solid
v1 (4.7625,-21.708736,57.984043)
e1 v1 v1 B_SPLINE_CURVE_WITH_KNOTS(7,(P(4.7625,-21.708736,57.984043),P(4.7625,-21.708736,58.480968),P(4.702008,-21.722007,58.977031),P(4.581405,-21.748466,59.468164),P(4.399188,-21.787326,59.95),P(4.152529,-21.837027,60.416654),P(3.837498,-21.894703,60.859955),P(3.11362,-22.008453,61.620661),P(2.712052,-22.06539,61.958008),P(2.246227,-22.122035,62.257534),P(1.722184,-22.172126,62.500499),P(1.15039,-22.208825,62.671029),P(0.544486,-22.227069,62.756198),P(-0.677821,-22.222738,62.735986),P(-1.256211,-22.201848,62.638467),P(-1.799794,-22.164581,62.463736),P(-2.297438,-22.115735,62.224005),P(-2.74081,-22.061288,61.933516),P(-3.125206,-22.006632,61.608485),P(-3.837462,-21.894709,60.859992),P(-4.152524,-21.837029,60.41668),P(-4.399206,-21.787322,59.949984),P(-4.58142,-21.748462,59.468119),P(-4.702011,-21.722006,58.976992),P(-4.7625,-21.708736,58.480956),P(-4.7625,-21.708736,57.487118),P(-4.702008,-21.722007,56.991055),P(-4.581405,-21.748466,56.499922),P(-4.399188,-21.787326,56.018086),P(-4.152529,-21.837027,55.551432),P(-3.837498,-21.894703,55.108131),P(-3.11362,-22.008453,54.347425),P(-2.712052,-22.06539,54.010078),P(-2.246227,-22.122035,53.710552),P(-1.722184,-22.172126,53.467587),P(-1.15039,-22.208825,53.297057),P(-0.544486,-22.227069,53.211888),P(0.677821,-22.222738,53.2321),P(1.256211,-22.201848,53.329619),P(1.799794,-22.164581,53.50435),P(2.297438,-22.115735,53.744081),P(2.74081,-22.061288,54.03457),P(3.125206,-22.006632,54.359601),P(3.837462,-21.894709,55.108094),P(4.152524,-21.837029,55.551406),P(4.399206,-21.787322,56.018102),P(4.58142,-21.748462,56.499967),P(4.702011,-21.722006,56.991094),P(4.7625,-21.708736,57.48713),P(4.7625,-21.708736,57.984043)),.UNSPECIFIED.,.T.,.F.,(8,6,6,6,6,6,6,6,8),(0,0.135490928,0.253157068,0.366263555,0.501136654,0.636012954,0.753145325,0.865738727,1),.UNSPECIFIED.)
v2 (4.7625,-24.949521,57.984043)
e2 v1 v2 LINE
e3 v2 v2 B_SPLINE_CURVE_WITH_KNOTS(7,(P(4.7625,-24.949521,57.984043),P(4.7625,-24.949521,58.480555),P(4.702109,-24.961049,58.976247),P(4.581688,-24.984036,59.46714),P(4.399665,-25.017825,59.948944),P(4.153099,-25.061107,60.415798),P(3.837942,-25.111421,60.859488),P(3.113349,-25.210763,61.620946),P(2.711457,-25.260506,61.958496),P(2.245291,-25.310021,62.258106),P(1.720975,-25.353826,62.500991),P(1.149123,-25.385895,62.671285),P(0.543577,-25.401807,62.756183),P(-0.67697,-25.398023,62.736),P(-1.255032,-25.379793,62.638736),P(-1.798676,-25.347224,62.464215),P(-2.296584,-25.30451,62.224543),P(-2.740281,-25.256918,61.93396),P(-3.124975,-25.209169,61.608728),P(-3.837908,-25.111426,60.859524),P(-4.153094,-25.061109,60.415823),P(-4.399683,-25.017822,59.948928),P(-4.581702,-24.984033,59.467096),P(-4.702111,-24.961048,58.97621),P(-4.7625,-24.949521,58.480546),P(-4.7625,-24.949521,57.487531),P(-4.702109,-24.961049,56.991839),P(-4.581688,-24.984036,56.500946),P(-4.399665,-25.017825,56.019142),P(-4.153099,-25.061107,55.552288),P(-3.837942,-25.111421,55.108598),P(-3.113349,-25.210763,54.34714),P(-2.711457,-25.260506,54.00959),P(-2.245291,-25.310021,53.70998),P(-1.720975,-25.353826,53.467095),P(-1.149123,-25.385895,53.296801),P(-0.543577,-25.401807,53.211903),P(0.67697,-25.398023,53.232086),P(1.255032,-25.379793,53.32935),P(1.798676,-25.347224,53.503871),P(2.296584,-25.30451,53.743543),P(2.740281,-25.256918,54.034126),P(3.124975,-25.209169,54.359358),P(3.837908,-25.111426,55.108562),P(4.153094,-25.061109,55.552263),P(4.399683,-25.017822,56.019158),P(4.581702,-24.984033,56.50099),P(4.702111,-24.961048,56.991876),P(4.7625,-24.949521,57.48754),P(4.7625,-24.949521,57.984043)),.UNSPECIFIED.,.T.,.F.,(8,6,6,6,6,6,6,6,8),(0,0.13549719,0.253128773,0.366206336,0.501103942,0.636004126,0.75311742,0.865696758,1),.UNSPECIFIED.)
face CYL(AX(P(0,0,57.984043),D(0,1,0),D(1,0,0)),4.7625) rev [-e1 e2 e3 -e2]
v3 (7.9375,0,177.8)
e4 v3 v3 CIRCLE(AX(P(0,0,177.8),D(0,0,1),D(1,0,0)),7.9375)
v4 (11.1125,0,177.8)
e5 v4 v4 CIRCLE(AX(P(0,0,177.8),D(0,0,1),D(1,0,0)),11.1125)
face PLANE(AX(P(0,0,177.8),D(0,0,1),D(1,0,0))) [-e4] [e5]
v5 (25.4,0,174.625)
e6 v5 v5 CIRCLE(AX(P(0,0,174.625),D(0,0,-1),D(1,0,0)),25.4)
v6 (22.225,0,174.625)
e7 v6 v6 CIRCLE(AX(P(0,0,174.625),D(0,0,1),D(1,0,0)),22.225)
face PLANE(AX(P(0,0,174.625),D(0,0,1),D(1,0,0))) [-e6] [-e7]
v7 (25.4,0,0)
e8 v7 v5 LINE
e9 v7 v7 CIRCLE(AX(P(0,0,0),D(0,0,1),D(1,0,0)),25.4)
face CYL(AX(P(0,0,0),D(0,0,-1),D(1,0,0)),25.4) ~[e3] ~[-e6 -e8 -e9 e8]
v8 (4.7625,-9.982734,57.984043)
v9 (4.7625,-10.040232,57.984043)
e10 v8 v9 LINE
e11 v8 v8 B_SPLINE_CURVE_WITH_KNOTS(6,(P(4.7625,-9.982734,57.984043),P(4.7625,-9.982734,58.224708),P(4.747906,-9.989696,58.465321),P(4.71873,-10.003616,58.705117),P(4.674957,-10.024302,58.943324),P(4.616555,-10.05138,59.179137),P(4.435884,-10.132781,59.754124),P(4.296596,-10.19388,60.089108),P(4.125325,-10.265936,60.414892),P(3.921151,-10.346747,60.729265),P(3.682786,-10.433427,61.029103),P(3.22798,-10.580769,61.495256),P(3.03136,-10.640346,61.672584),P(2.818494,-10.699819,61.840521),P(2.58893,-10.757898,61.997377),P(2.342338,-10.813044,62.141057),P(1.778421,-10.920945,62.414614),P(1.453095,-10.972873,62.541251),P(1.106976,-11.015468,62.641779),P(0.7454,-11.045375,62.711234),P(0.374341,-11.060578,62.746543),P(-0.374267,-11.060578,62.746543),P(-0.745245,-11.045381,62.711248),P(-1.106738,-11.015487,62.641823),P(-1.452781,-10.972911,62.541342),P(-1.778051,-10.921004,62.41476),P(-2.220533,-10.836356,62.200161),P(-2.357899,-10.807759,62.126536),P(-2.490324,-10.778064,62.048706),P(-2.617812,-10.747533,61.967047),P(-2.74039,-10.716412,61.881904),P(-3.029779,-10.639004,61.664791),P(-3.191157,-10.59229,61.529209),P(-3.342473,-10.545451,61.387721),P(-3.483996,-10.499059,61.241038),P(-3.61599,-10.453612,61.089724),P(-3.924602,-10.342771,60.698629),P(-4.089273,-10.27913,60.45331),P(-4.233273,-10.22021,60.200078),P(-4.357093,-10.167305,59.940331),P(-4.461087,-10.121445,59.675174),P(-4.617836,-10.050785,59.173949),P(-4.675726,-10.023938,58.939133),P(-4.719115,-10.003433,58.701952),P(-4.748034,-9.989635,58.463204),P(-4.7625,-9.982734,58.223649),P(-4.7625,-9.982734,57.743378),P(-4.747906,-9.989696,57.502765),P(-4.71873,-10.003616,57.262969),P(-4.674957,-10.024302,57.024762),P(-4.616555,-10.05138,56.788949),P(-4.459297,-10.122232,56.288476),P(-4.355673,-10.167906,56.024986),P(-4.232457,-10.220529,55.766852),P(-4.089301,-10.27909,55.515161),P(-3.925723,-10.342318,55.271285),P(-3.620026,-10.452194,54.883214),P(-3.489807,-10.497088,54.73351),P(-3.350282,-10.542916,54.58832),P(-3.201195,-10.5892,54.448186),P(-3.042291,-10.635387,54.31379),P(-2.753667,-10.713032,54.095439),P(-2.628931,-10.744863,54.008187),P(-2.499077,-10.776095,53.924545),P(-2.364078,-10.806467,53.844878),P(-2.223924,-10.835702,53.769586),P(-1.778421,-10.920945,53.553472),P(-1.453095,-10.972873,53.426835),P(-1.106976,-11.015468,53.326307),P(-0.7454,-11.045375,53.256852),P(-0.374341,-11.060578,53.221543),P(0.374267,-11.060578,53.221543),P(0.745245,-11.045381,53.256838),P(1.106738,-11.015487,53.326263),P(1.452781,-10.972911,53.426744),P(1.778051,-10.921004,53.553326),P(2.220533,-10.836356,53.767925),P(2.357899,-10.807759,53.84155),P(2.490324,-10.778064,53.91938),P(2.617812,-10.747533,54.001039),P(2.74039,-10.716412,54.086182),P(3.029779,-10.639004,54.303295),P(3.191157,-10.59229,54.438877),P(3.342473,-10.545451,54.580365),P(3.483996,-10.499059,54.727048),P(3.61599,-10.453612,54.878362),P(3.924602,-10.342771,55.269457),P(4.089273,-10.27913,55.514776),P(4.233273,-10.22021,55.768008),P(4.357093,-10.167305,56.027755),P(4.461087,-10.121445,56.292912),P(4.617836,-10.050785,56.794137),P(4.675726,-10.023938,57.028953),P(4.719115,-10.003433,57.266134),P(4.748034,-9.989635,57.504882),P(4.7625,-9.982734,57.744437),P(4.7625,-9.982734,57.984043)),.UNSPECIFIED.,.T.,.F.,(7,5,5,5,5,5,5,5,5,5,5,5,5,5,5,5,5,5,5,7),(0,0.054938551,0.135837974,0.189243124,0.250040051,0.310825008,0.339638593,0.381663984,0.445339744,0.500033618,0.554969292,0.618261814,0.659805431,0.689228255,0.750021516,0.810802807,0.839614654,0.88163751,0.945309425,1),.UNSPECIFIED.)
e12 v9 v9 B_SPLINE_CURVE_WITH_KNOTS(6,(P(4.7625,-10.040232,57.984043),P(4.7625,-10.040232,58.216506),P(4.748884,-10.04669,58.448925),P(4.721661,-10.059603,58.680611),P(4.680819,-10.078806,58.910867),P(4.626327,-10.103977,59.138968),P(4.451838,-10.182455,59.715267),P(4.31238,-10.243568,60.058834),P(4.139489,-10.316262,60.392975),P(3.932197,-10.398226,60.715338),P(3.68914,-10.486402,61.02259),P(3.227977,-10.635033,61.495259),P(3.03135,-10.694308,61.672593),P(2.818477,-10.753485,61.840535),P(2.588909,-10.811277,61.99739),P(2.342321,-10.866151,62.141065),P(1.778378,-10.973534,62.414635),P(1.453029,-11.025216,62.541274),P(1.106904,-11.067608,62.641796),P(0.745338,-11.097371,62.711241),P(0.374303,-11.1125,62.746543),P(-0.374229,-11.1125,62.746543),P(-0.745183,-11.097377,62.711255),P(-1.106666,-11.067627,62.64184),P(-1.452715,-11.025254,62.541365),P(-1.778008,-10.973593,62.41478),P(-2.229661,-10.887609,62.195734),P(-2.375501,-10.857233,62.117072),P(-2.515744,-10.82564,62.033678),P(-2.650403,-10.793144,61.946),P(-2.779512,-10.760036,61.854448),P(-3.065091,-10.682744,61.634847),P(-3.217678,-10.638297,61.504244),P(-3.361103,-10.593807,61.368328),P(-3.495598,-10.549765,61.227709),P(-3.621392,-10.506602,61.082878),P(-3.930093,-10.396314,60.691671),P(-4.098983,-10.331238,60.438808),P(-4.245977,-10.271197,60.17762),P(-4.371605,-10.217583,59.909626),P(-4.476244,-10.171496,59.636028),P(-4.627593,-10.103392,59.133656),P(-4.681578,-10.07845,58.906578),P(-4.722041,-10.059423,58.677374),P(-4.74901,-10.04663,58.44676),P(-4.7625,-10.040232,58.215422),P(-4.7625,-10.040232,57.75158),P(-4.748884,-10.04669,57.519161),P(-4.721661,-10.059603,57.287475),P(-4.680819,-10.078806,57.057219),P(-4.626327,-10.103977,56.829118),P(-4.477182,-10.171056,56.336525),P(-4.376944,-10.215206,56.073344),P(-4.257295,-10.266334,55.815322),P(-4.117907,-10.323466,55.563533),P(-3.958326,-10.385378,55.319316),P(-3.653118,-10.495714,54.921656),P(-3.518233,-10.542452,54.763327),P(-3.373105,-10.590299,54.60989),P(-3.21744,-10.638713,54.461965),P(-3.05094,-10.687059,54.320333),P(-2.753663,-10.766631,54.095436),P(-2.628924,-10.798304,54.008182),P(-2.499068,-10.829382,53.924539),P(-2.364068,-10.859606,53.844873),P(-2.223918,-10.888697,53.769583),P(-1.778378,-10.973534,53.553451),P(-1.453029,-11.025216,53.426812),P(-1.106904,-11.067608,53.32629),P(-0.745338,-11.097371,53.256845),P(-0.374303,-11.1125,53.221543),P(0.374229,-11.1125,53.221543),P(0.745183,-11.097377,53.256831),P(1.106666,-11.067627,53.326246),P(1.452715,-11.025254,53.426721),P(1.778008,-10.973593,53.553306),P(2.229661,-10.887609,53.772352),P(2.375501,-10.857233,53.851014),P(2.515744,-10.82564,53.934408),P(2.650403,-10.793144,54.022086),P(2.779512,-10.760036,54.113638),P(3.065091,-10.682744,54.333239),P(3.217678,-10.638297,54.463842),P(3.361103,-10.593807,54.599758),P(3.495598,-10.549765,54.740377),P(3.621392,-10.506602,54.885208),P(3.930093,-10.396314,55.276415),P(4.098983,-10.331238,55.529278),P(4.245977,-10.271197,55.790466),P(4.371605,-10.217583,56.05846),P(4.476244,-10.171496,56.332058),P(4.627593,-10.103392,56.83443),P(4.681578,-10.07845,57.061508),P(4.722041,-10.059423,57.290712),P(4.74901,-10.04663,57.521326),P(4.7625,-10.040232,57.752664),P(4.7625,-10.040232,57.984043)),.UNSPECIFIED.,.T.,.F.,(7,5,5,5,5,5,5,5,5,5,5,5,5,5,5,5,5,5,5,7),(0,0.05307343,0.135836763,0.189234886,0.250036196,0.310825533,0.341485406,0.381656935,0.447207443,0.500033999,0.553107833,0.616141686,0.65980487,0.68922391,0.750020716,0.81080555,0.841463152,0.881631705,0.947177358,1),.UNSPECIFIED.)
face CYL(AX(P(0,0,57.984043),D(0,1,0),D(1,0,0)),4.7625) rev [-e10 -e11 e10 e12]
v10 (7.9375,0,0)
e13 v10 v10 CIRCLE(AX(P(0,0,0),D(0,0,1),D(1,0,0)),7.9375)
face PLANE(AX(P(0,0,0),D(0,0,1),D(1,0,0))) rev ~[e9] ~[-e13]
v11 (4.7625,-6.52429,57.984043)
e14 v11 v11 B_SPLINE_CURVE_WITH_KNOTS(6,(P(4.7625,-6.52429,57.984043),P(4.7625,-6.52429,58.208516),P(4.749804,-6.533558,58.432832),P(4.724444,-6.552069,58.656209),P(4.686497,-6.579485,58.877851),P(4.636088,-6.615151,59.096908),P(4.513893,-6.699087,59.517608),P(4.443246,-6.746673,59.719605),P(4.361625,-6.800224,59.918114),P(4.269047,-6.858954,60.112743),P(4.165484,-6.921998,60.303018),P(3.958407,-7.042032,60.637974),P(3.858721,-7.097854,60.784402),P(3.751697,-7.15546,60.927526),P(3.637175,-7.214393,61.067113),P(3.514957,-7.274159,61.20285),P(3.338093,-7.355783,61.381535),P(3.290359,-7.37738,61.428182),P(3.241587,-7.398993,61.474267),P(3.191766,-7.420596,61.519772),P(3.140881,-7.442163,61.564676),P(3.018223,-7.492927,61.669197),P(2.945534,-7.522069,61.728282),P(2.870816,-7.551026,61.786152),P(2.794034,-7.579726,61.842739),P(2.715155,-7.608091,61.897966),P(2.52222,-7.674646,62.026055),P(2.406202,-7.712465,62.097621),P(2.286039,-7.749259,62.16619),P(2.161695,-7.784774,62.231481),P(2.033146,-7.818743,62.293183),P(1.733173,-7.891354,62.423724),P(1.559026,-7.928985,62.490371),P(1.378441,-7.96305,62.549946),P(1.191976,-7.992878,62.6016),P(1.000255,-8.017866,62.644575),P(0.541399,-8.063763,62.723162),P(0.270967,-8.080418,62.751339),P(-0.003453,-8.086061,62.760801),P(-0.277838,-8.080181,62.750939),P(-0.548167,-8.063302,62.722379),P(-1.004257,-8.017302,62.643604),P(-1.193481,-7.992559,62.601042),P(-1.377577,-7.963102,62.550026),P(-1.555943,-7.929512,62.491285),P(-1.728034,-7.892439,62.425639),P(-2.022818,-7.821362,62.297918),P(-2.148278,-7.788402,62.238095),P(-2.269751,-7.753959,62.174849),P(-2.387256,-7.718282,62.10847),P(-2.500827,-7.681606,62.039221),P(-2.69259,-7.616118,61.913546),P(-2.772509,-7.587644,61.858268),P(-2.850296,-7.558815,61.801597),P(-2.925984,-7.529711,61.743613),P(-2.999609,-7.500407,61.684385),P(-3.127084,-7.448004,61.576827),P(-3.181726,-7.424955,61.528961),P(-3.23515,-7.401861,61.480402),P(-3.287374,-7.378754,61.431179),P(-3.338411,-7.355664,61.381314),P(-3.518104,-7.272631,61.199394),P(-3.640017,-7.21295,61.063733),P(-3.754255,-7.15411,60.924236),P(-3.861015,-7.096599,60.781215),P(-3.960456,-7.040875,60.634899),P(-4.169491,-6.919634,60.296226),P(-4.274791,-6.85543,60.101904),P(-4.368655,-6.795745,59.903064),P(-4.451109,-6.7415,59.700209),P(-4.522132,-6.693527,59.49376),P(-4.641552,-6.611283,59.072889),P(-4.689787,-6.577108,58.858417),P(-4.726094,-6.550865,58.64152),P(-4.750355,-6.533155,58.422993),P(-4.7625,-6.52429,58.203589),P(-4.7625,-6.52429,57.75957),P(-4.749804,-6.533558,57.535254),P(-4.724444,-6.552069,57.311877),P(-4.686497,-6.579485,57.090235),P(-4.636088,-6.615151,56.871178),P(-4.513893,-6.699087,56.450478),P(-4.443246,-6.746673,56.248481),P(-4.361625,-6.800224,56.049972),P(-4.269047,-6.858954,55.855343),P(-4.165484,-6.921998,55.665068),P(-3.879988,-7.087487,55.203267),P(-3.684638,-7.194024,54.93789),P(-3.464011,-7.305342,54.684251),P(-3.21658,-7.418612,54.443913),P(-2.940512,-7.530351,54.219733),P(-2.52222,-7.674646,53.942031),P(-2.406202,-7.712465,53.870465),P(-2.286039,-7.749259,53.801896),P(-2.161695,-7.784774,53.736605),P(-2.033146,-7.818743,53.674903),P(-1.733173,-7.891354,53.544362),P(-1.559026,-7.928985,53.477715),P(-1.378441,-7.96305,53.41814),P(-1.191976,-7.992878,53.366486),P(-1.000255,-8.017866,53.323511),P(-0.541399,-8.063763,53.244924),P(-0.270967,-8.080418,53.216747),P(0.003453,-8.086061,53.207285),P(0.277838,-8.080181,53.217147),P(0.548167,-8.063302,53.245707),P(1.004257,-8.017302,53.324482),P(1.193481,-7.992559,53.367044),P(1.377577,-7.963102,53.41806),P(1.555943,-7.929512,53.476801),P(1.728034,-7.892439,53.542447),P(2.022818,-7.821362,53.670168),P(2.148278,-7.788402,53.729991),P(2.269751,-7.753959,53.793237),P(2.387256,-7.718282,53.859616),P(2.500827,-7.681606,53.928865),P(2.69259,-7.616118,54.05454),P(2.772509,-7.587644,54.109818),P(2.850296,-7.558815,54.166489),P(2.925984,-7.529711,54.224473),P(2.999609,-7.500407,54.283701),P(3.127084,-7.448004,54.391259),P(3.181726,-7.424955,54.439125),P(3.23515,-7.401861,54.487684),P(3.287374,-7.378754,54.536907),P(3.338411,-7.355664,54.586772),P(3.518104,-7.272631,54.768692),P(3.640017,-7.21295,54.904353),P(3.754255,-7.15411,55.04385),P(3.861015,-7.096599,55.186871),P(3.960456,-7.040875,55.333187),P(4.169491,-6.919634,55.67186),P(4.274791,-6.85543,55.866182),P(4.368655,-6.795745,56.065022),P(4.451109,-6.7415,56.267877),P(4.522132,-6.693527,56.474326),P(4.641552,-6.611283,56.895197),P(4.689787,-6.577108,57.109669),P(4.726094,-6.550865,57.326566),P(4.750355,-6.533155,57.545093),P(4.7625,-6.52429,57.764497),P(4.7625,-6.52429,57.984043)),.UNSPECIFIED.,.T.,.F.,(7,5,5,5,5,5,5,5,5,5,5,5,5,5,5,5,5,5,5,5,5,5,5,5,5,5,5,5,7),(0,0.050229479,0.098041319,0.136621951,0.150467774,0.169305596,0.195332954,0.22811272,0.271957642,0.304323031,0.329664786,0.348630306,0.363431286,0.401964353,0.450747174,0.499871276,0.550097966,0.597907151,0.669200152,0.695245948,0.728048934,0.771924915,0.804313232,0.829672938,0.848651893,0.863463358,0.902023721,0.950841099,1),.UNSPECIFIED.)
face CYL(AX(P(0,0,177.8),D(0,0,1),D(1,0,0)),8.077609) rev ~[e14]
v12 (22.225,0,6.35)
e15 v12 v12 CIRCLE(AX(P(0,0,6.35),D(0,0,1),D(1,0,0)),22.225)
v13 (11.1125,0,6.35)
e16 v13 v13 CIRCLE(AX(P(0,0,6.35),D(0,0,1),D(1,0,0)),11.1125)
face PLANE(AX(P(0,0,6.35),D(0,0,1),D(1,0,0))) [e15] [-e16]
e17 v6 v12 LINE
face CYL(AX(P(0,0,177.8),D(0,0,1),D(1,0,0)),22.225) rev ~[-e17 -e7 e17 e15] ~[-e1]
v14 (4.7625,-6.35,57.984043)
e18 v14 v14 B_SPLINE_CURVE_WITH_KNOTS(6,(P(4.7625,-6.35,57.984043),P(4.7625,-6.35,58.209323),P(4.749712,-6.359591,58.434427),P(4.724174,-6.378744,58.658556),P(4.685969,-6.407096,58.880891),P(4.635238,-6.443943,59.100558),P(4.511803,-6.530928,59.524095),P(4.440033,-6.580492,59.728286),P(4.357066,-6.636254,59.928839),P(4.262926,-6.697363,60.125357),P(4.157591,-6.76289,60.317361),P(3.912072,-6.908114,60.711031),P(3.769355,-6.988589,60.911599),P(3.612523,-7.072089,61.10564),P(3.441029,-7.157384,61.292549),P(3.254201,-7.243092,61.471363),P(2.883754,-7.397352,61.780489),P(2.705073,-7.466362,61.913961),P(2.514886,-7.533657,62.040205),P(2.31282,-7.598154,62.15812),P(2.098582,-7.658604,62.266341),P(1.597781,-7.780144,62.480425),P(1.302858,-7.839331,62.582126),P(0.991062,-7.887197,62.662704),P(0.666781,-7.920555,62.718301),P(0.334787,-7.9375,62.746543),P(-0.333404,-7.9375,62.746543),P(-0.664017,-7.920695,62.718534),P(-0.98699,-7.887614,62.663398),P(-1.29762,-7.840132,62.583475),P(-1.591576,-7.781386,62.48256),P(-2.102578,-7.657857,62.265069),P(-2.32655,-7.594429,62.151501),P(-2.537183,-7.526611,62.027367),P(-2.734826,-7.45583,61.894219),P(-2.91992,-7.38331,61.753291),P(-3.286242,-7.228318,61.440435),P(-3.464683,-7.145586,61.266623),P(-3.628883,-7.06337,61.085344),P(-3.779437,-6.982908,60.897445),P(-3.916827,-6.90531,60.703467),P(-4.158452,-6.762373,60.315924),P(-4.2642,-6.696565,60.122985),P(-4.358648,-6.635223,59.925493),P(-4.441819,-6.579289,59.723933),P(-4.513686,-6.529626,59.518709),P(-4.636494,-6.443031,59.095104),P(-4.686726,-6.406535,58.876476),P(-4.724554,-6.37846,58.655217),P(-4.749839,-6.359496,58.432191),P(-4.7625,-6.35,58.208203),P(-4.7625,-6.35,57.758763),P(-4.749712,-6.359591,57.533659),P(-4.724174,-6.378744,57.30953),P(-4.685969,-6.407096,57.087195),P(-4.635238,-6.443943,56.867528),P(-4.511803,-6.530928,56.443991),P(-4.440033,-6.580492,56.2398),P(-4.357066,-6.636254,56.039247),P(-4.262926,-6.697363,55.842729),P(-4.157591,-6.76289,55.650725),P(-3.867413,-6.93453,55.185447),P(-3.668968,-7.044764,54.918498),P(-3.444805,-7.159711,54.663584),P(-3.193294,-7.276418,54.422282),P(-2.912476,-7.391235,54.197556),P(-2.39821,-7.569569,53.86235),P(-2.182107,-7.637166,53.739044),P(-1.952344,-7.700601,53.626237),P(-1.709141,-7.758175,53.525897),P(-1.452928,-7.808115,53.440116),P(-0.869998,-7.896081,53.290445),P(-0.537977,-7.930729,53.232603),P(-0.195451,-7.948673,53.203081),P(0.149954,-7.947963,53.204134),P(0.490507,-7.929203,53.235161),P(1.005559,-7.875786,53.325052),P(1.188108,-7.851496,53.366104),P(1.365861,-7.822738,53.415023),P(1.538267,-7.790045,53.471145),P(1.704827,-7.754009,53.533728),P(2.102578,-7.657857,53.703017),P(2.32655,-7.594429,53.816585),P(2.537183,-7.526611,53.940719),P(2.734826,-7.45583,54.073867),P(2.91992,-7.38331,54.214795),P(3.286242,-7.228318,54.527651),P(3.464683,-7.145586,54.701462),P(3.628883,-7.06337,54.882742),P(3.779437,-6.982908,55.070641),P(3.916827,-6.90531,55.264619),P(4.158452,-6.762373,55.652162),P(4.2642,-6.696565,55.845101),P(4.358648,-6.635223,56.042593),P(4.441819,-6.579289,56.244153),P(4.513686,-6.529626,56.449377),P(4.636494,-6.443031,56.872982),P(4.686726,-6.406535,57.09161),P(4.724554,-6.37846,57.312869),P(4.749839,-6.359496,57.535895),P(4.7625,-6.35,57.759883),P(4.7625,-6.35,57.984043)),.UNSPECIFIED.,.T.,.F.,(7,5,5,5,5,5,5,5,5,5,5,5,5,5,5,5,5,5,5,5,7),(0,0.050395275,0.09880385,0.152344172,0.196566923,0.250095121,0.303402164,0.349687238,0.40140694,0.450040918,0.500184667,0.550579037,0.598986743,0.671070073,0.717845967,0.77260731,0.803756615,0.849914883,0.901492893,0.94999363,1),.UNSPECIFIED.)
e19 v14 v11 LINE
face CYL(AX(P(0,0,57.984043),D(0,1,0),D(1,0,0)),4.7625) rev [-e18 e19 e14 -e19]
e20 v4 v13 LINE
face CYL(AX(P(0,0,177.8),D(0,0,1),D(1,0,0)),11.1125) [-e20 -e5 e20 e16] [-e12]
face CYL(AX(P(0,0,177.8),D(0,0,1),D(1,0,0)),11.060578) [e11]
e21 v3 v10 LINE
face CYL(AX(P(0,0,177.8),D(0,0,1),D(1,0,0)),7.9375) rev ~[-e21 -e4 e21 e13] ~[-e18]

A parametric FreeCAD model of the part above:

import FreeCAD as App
import Part
import Sketcher

V = App.Vector
Q = App.Units.Quantity

doc = App.newDocument("Part")
body = doc.addObject("PartDesign::Body", "Body")

# Sketch on XY plane
sketch1 = body.newObject("Sketcher::SketchObject", "Sketch")
sketch1.AttachmentSupport = (doc.getObject("XY_Plane"), [""])
sketch1.MapMode = "FlatFace"
sketch1.addGeometry(Part.Circle(V(0, 0, 0), V(0, 0, 1), 25), False)
sketch1.addConstraint([
    Sketcher.Constraint("Coincident", 0, 3, -1, 1),
    Sketcher.Constraint("Diameter", 0, Q("2 in")),
])
pad1 = body.newObject("PartDesign::Pad", "Pad")
pad1.Profile = sketch1
pad1.Length = Q("7 in")

# Sketch on XY plane
sketch2 = body.newObject("Sketcher::SketchObject", "Sketch001")
sketch2.AttachmentSupport = (doc.getObject("XY_Plane"), [""])
sketch2.MapMode = "FlatFace"
sketch2.AttachmentOffset = App.Placement(V(0, 0, 7 * 25.4), App.Rotation())
sketch2.addGeometry(Part.Circle(V(0, 0, 0), V(0, 0, 1), 8), False)
sketch2.addConstraint([
    Sketcher.Constraint("Coincident", 0, 3, -1, 1),
    Sketcher.Constraint("Diameter", 0, Q("0.625 in")),
])
pocket1 = body.newObject("PartDesign::Pocket", "Pocket")
pocket1.Profile = sketch2
pocket1.Length = Q("9.48 in")

# Sketch on XY plane
sketch3 = body.newObject("Sketcher::SketchObject", "Sketch002")
sketch3.AttachmentSupport = (doc.getObject("XY_Plane"), [""])
sketch3.MapMode = "FlatFace"
sketch3.AttachmentOffset = App.Placement(V(0, 0, 7 * 25.4), App.Rotation())
sketch3.addGeometry([
    Part.Circle(V(0, 0, 0), V(0, 0, 1), 22),
    Part.Circle(V(0, 0, 0), V(0, 0, 1), 11),
], False)
sketch3.addConstraint([
    Sketcher.Constraint("Coincident", 0, 3, -1, 1),
    Sketcher.Constraint("Coincident", 1, 3, -1, 1),
    Sketcher.Constraint("Diameter", 0, Q("1.75 in")),
    Sketcher.Constraint("Diameter", 1, Q("0.875 in")),
])
pocket2 = body.newObject("PartDesign::Pocket", "Pocket001")
pocket2.Profile = sketch3
pocket2.Length = Q("6.75 in")

# Sketch on XY plane
sketch4 = body.newObject("Sketcher::SketchObject", "Sketch003")
sketch4.AttachmentSupport = (doc.getObject("XY_Plane"), [""])
sketch4.MapMode = "FlatFace"
sketch4.AttachmentOffset = App.Placement(V(0, 0, 7 * 25.4), App.Rotation())
sketch4.addGeometry([
    Part.Circle(V(0, 0, 0), V(0, 0, 1), 29),
    Part.Circle(V(0, 0, 0), V(0, 0, 1), 15),
], False)
sketch4.addConstraint([
    Sketcher.Constraint("Coincident", 0, 3, -1, 1),
    Sketcher.Constraint("Coincident", 1, 3, -1, 1),
    Sketcher.Constraint("Diameter", 1, Q("29.248012 mm")),
    Sketcher.Constraint("Diameter", 0, Q("57.208528 mm")),
])
pocket3 = body.newObject("PartDesign::Pocket", "Pocket002")
pocket3.Profile = sketch4
pocket3.Length = Q("0.125 in")

# Sketch on XZ plane
sketch5 = body.newObject("Sketcher::SketchObject", "Sketch004")
sketch5.AttachmentSupport = (doc.getObject("XZ_Plane"), [""])
sketch5.MapMode = "FlatFace"
sketch5.addGeometry(Part.Circle(V(0, 58, 0), V(0, 0, 1), 4.8), False)
sketch5.addConstraint([
    Sketcher.Constraint("PointOnObject", 0, 3, -2),
    Sketcher.Constraint("Diameter", 0, Q("0.375 in")),
    Sketcher.Constraint("DistanceY", -1, 1, 0, 3, Q("57.984043 mm")),
])
pocket4 = body.newObject("PartDesign::Pocket", "Pocket003")
pocket4.Profile = sketch5
pocket4.Length = Q("1.36 in")
pocket4.Reversed = True

# Sketch on XY plane
sketch6 = body.newObject("Sketcher::SketchObject", "Sketch005")
sketch6.AttachmentSupport = (doc.getObject("XY_Plane"), [""])
sketch6.MapMode = "FlatFace"
sketch6.AttachmentOffset = App.Placement(V(0, 0, 7 * 25.4), App.Rotation())
sketch6.addGeometry([
    Part.Circle(V(0, 0, 0), V(0, 0, 1), 11),
    Part.Circle(V(0, 0, 0), V(0, 0, 1), 8),
], False)
sketch6.addConstraint([
    Sketcher.Constraint("Coincident", 0, 3, -1, 1),
    Sketcher.Constraint("Coincident", 1, 3, -1, 1),
    Sketcher.Constraint("Diameter", 1, Q("16.155218 mm")),
    Sketcher.Constraint("Diameter", 0, Q("22.121156 mm")),
])
pad2 = body.newObject("PartDesign::Pad", "Pad001")
pad2.Profile = sketch6
pad2.Length = Q("5.14 in")
pad2.Reversed = True

doc.recompute()
